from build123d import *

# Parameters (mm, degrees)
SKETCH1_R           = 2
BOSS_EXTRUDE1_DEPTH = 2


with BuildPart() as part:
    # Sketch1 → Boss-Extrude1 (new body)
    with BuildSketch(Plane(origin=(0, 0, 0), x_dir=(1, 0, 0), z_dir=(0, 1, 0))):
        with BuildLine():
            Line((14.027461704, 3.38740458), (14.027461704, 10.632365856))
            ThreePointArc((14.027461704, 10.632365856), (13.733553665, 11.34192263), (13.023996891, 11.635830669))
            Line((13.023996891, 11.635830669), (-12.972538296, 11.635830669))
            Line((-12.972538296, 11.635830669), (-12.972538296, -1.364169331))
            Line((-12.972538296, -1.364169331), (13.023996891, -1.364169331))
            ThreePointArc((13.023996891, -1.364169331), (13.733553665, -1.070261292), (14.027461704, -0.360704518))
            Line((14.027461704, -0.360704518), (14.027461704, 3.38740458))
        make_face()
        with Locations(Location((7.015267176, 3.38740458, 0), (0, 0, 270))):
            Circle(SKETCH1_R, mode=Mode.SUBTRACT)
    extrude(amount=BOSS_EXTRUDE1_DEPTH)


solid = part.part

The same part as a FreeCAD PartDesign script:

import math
import FreeCAD as App
import Part
import Sketcher
Q = App.Units.Quantity

doc = App.newDocument("Part")
params = doc.addObject("Spreadsheet::Sheet", "Params")
for row, (alias, value) in enumerate([
    ("sketch1_diameter", "4 mm"),
    ("sketch1_height", "13 mm"),
    ("pad1_length", "2 mm"),
], start=1):
    params.set(f"A{row}", alias)
    params.set(f"B{row}", "=" + value)
    params.setAlias(f"B{row}", alias)

body = doc.addObject("PartDesign::Body", "Body")

sketch1 = body.newObject("Sketcher::SketchObject", "Sketch")
sketch1.AttachmentSupport = (doc.getObject("XZ_Plane"), [""])
sketch1.MapMode = "FlatFace"
sketch1.addGeometry([
    Part.ArcOfCircle(Part.Circle(App.Vector(13, -10.6, 0), App.Vector(0, 0, 1), 1), math.radians(-90), math.radians(0)),
    Part.LineSegment(App.Vector(13, -11.6, 0), App.Vector(-13, -11.6, 0)),
    Part.LineSegment(App.Vector(-13, -11.6, 0), App.Vector(-13, 1.4, 0)),
    Part.LineSegment(App.Vector(-13, 1.4, 0), App.Vector(13, 1.4, 0)),
    Part.ArcOfCircle(Part.Circle(App.Vector(13, 0.4, 0), App.Vector(0, 0, 1), 1), math.radians(0), math.radians(90)),
    Part.LineSegment(App.Vector(14, 0.4, 0), App.Vector(14, -10.6, 0)),
    Part.Circle(App.Vector(7, -3.4, 0), App.Vector(0, 0, 1), 2),
], False)
sketch1.addConstraint([
    Sketcher.Constraint("Tangent", 0, 1, 1, 1),
    Sketcher.Constraint("Coincident", 1, 2, 2, 1),
    Sketcher.Constraint("Coincident", 2, 2, 3, 1),
    Sketcher.Constraint("Tangent", 3, 2, 4, 2),
    Sketcher.Constraint("Tangent", 4, 1, 5, 1),
    Sketcher.Constraint("Tangent", 5, 2, 0, 2),
    Sketcher.Constraint("Horizontal", 1),
    Sketcher.Constraint("Vertical", 2),
    Sketcher.Constraint("Horizontal", 3),
    Sketcher.Constraint("Vertical", 5),
    Sketcher.Constraint("Equal", 0, 4),
    Sketcher.Constraint("Diameter", 6, Q("4 mm")),
    Sketcher.Constraint("DistanceY", 2, 1, 2, 2, Q("13 mm")),
    Sketcher.Constraint("Radius", 0, Q("1.003465 mm")),
    Sketcher.Constraint("DistanceX", 1, 2, 1, 1, Q("25.996535 mm")),
    Sketcher.Constraint("DistanceY", 0, 1, -1, 1, Q("11.635831 mm")),
    Sketcher.Constraint("DistanceX", 1, 2, -1, 1, Q("12.972538 mm")),
    Sketcher.Constraint("DistanceX", 6, 3, 4, 3, Q("6.00873 mm")),
    Sketcher.Constraint("DistanceY", 6, 3, 4, 3, Q("3.748109 mm")),
])
sketch1.setExpression("Constraints[11]", "Params.sketch1_diameter")
sketch1.setExpression("Constraints[12]", "Params.sketch1_height")
pad1 = body.newObject("PartDesign::Pad", "Pad")
pad1.Profile = sketch1
pad1.setExpression("Length", "Params.pad1_length")
pad1.Reversed = True

doc.recompute()
